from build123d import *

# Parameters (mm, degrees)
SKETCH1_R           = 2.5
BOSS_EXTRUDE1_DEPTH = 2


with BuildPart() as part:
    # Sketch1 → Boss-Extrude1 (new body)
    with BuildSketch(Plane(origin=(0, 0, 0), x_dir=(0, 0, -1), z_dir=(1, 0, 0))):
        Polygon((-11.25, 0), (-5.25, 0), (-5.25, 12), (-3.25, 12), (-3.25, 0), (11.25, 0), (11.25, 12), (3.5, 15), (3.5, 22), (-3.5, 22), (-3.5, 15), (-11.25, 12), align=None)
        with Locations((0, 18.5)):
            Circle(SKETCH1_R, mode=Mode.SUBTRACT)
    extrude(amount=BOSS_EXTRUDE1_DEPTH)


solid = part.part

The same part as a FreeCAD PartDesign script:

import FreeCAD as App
import Part
import Sketcher

V = App.Vector
Q = App.Units.Quantity


def add_polygon(sketch, points):
    """Adds a closed chain of lines whose ends are joined by coincident constraints."""
    first, n = sketch.GeometryCount, len(points)
    for a, b in zip(points, points[1:] + points[:1]):
        sketch.addGeometry(Part.LineSegment(App.Vector(*a, 0), App.Vector(*b, 0)), False)
    for i in range(n):
        sketch.addConstraint(Sketcher.Constraint("Coincident", first + i, 2, first + (i + 1) % n, 1))

doc = App.newDocument("Part")
params = doc.addObject("Spreadsheet::Sheet", "Params")
for row, (alias, value) in enumerate([
    ("sketch1_diameter", "5 mm"),
    ("sketch1_width", "12 mm"),
    ("sketch1_width2", "7 mm"),
    ("sketch1_height", "6 mm"),
    ("sketch1_height2", "2 mm"),
    ("pad1_length", "2 mm"),
], start=1):
    params.set(f"A{row}", alias)
    params.set(f"B{row}", "=" + value)
    params.setAlias(f"B{row}", alias)

body = doc.addObject("PartDesign::Body", "Body")

sketch1 = body.newObject("Sketcher::SketchObject", "Sketch")
sketch1.AttachmentSupport = (doc.getObject("YZ_Plane"), [""])
sketch1.MapMode = "FlatFace"
add_polygon(sketch1, [(0, 11.2), (0, 5.2), (12, 5.2), (12, 3.2), (0, 3.2), (0, -11.2), (12, -11.2), (15, -3.5), (22, -3.5), (22, 3.5), (15, 3.5), (12, 11.2)])
sketch1.addGeometry(Part.Circle(V(18.5, 0, 0), V(0, 0, 1), 2.5), False)
sketch1.addConstraint([
    Sketcher.Constraint("Vertical", 0),
    Sketcher.Constraint("Horizontal", 1),
    Sketcher.Constraint("Vertical", 2),
    Sketcher.Constraint("Horizontal", 3),
    Sketcher.Constraint("Vertical", 4),
    Sketcher.Constraint("Horizontal", 5),
    Sketcher.Constraint("Horizontal", 7),
    Sketcher.Constraint("Vertical", 8),
    Sketcher.Constraint("Horizontal", 9),
    Sketcher.Constraint("Horizontal", 11),
    Sketcher.Constraint("Symmetric", 4, 2, 11, 2, -1, 1),
    Sketcher.Constraint("Symmetric", 6, 2, 9, 2, -1),
    Sketcher.Constraint("PointOnObject", 12, 3, -1),
    Sketcher.Constraint("PointOnObject", 0, 2, -2),
    Sketcher.Constraint("Vertical", 2, 2, 5, 2),
    Sketcher.Constraint("Vertical", 5, 2, 10, 2),
    Sketcher.Constraint("Equal", 9, 8),
    Sketcher.Constraint("Diameter", 12, Q("5 mm")),
    Sketcher.Constraint("DistanceX", 1, 1, 1, 2, Q("12 mm")),
    Sketcher.Constraint("DistanceX", 7, 1, 7, 2, Q("7 mm")),
    Sketcher.Constraint("DistanceY", 0, 2, 0, 1, Q("6 mm")),
    Sketcher.Constraint("DistanceY", 2, 2, 2, 1, Q("2 mm")),
    Sketcher.Constraint("DistanceY", 4, 2, 4, 1, Q("14.5 mm")),
    Sketcher.Constraint("DistanceX", -1, 1, 6, 2, Q("15 mm")),
    Sketcher.Constraint("DistanceX", -1, 1, 12, 3, Q("18.5 mm")),
])
sketch1.setExpression("Constraints[29]", "Params.sketch1_diameter")
sketch1.setExpression("Constraints[30]", "Params.sketch1_width")
sketch1.setExpression("Constraints[31]", "Params.sketch1_width2")
sketch1.setExpression("Constraints[32]", "Params.sketch1_height")
sketch1.setExpression("Constraints[33]", "Params.sketch1_height2")
pad1 = body.newObject("PartDesign::Pad", "Pad")
pad1.Profile = sketch1
pad1.setExpression("Length", "Params.pad1_length")

doc.recompute()
